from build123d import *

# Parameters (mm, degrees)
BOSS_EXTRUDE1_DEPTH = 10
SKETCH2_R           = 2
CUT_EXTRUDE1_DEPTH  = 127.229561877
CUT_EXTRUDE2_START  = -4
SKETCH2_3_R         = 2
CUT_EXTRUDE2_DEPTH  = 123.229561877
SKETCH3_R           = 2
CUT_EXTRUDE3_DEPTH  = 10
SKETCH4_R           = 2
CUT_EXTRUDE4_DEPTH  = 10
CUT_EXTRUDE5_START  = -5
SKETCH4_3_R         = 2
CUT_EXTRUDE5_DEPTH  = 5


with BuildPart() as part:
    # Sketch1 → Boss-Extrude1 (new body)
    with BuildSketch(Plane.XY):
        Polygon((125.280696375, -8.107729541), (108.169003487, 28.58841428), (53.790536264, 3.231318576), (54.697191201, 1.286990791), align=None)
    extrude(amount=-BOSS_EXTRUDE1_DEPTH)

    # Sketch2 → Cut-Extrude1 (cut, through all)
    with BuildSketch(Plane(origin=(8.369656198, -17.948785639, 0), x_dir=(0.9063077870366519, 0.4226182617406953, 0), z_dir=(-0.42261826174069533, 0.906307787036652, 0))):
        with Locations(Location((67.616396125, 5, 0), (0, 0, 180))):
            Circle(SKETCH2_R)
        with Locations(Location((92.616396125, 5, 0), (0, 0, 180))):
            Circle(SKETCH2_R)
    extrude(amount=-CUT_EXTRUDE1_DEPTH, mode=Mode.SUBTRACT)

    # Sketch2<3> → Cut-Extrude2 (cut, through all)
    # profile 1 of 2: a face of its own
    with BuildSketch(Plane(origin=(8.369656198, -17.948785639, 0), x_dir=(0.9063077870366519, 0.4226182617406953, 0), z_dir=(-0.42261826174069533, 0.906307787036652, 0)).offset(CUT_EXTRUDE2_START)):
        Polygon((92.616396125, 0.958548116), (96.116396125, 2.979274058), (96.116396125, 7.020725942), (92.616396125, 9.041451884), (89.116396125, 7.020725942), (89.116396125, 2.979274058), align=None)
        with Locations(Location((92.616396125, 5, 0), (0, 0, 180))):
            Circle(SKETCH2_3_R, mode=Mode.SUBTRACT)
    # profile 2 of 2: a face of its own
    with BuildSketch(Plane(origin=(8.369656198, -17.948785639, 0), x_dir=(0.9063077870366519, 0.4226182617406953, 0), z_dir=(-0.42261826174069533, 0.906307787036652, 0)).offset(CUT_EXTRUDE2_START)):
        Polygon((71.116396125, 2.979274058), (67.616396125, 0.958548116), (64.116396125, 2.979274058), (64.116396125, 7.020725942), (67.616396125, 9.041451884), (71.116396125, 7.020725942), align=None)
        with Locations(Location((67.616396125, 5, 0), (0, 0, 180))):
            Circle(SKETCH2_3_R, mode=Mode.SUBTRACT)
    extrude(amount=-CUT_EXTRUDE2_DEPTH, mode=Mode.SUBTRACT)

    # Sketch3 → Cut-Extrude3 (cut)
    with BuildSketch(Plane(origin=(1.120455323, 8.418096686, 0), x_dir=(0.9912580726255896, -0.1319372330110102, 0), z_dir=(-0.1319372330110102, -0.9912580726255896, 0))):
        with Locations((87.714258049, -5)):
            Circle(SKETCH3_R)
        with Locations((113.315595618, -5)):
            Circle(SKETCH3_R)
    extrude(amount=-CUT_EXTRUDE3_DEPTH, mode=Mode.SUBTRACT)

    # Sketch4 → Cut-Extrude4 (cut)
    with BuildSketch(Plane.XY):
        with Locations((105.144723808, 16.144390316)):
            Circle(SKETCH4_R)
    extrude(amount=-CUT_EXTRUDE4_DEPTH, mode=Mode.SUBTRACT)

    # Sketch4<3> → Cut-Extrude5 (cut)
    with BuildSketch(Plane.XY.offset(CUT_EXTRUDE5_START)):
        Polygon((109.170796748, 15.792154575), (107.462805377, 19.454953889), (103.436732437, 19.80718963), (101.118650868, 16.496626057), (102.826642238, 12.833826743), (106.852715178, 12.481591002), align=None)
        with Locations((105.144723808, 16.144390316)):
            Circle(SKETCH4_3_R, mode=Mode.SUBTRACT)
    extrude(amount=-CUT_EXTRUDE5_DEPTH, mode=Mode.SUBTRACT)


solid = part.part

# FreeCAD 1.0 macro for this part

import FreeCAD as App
import Part
import Sketcher
from FreeCAD import Vector
Q = App.Units.Quantity


def add_polygon(sketch, points):
    """Adds a closed chain of lines whose ends are joined by coincident constraints."""
    first, n = sketch.GeometryCount, len(points)
    for a, b in zip(points, points[1:] + points[:1]):
        sketch.addGeometry(Part.LineSegment(App.Vector(*a, 0), App.Vector(*b, 0)), False)
    for i in range(n):
        sketch.addConstraint(Sketcher.Constraint("Coincident", first + i, 2, first + (i + 1) % n, 1))

doc = App.newDocument("Part")
params = doc.addObject("Spreadsheet::Sheet", "Params")
for row, (alias, value) in enumerate([
    ("sketch1_length", "60 mm"),
    ("pad1_length", "10 mm"),
    ("sketch2_diameter", "4 mm"),
    ("sketch3_diameter", "4 mm"),
    ("pocket2_length", "123.229562 mm"),
    ("sketch4_diameter", "4 mm"),
    ("pocket3_length", "10 mm"),
    ("sketch5_diameter", "4 mm"),
    ("pocket4_length", "10 mm"),
    ("sketch6_diameter", "4 mm"),
    ("pocket5_length", "5 mm"),
], start=1):
    params.set(f"A{row}", alias)
    params.set(f"B{row}", "=" + value)
    params.setAlias(f"B{row}", alias)

body = doc.addObject("PartDesign::Body", "Body")

# Sketch on XY plane
sketch1 = body.newObject("Sketcher::SketchObject", "Sketch")
sketch1.AttachmentSupport = (doc.getObject("XY_Plane"), [""])
sketch1.MapMode = "FlatFace"
add_polygon(sketch1, [(125.3, -8.1), (108.2, 28.6), (53.8, 3.2), (54.7, 1.3)])  # lines 0-3
sketch1.addConstraint([
    Sketcher.Constraint("Perpendicular", 0, 1),
    Sketcher.Constraint("Perpendicular", 1, 2),
    Sketcher.Constraint("Angle", 0, Q("115 deg")),
    Sketcher.Constraint("Distance", 1, 60.0),
    Sketcher.Constraint("Distance", 2, 2.145328),
    Sketcher.Constraint("DistanceY", -1, 1, 1, 2, 3.231319),
    Sketcher.Constraint("DistanceX", -1, 1, 2, 2, 54.697191),
    Sketcher.Constraint("DistanceY", 3, 2, -1, 1, 8.10773),
])
sketch1.setExpression("Constraints[7]", "Params.sketch1_length")
pad1 = body.newObject("PartDesign::Pad", "Pad")
pad1.Profile = sketch1
pad1.setExpression("Length", "Params.pad1_length")
pad1.Reversed = True

# Sketch on an angled plane
sketch2 = body.newObject("Sketcher::SketchObject", "Sketch001")
sketch2.Placement = App.Placement(Vector(8.369656, -17.948786, 0), App.Rotation(Vector(0.906307787, 0.422618262, 0), Vector(0, 0, -1), Vector(-0.422618262, 0.906307787, 0), "ZXY"))
sketch2.addGeometry([
    Part.Circle(Vector(67.6, 5, 0), Vector(0, 0, 1), 2),
    Part.Circle(Vector(92.6, 5, 0), Vector(0, 0, 1), 2),
], False)
sketch2.addConstraint([
    Sketcher.Constraint("Equal", 0, 1),
    Sketcher.Constraint("Horizontal", 0, 3, 1, 3),
    Sketcher.Constraint("Diameter", 0, 4.0),
    Sketcher.Constraint("DistanceY", -1, 1, 0, 3, 5.0),
    Sketcher.Constraint("DistanceX", 0, 3, 1, 3, 25.0),
    Sketcher.Constraint("DistanceX", -1, 1, 0, 3, 67.616396),
])
sketch2.setExpression("Constraints[2]", "Params.sketch2_diameter")
pocket1 = body.newObject("PartDesign::Pocket", "Pocket")
pocket1.Profile = sketch2
pocket1.Type = "ThroughAll"

# Sketch on an angled plane
sketch3 = body.newObject("Sketcher::SketchObject", "Sketch002")
sketch3.Placement = App.Placement(Vector(10.060129, -21.574017, 0), App.Rotation(Vector(0.906307787, 0.422618262, 0), Vector(0, 0, -1), Vector(-0.422618262, 0.906307787, 0), "ZXY"))
add_polygon(sketch3, [(92.6, 1), (96.1, 3), (96.1, 7), (92.6, 9), (89.1, 7), (89.1, 3)])  # lines 0-5
sketch3.addGeometry(Part.Circle(Vector(92.6, 5, 0), Vector(0, 0, 1), 2), False)  # 6
add_polygon(sketch3, [(67.6, 1), (71.1, 3), (71.1, 7), (67.6, 9), (64.1, 7), (64.1, 3)])  # lines 7-12
sketch3.addGeometry(Part.Circle(Vector(67.6, 5, 0), Vector(0, 0, 1), 2), False)  # 13
sketch3.addConstraint([
    Sketcher.Constraint("Vertical", 1),
    Sketcher.Constraint("Vertical", 4),
    Sketcher.Constraint("Vertical", 8),
    Sketcher.Constraint("Vertical", 11),
    Sketcher.Constraint("Equal", 6, 13),
    Sketcher.Constraint("Parallel", 0, 3),
    Sketcher.Constraint("Parallel", 2, 5),
    Sketcher.Constraint("Parallel", 3, 7),
    Sketcher.Constraint("Parallel", 5, 9),
    Sketcher.Constraint("Parallel", 7, 10),
    Sketcher.Constraint("Parallel", 9, 12),
    Sketcher.Constraint("Horizontal", 6, 3, 13, 3),
    Sketcher.Constraint("Horizontal", 1, 2, 3, 2),
    Sketcher.Constraint("Horizontal", 0, 2, 4, 2),
    Sketcher.Constraint("Horizontal", 4, 2, 7, 2),
    Sketcher.Constraint("Horizontal", 3, 2, 8, 2),
    Sketcher.Constraint("Horizontal", 2, 2, 9, 2),
    Sketcher.Constraint("Horizontal", 8, 2, 10, 2),
    Sketcher.Constraint("Horizontal", 7, 2, 11, 2),
    Sketcher.Constraint("Vertical", 6, 3, 2, 2),
    Sketcher.Constraint("Vertical", 2, 2, 5, 2),
    Sketcher.Constraint("Vertical", 13, 3, 9, 2),
    Sketcher.Constraint("Diameter", 6, 4.0),
    Sketcher.Constraint("Angle", 0, Q("30 deg")),
    Sketcher.Constraint("DistanceY", -1, 1, 6, 3, 5.0),
    Sketcher.Constraint("DistanceX", 13, 3, 6, 3, 25.0),
    Sketcher.Constraint("DistanceX", 3, 2, 1, 2, 7.0),
    Sketcher.Constraint("DistanceY", 1, 1, 1, 2, 4.041452),
    Sketcher.Constraint("DistanceY", -1, 1, 2, 2, 9.041452),
    Sketcher.Constraint("DistanceX", -1, 1, 6, 3, 92.616396),
])
sketch3.setExpression("Constraints[34]", "Params.sketch3_diameter")
pocket2 = body.newObject("PartDesign::Pocket", "Pocket001")
pocket2.Profile = sketch3
pocket2.setExpression("Length", "Params.pocket2_length")

# Sketch on an angled plane
sketch4 = body.newObject("Sketcher::SketchObject", "Sketch003")
sketch4.Placement = App.Placement(Vector(1.120455, 8.418097, 0), App.Rotation(Vector(0.991258073, -0.131937233, 0), Vector(0, 0, 1.000000001), Vector(-0.131937233, -0.991258073, 0), "ZXY"))
sketch4.addGeometry([
    Part.Circle(Vector(87.7, -5, 0), Vector(0, 0, 1), 2),
    Part.Circle(Vector(113.3, -5, 0), Vector(0, 0, 1), 2),
], False)
sketch4.addConstraint([
    Sketcher.Constraint("Equal", 0, 1),
    Sketcher.Constraint("Horizontal", 0, 3, 1, 3),
    Sketcher.Constraint("Diameter", 0, 4.0),
    Sketcher.Constraint("DistanceY", 0, 3, -1, 1, 5.0),
    Sketcher.Constraint("DistanceX", -1, 1, 0, 3, 87.714258),
    Sketcher.Constraint("DistanceX", -1, 1, 1, 3, 113.315596),
])
sketch4.setExpression("Constraints[2]", "Params.sketch4_diameter")
pocket3 = body.newObject("PartDesign::Pocket", "Pocket002")
pocket3.Profile = sketch4
pocket3.setExpression("Length", "Params.pocket3_length")

# Sketch on XY plane
sketch5 = body.newObject("Sketcher::SketchObject", "Sketch004")
sketch5.AttachmentSupport = (doc.getObject("XY_Plane"), [""])
sketch5.MapMode = "FlatFace"
sketch5.addGeometry(Part.Circle(Vector(105.1, 16.1, 0), Vector(0, 0, 1), 2), False)
sketch5.addConstraint([
    Sketcher.Constraint("Diameter", 0, 4.0),
    Sketcher.Constraint("DistanceY", -1, 1, 0, 3, 16.14439),
    Sketcher.Constraint("DistanceX", -1, 1, 0, 3, 105.144724),
])
sketch5.setExpression("Constraints[0]", "Params.sketch5_diameter")
pocket4 = body.newObject("PartDesign::Pocket", "Pocket003")
pocket4.Profile = sketch5
pocket4.setExpression("Length", "Params.pocket4_length")

# Sketch on XY plane
sketch6 = body.newObject("Sketcher::SketchObject", "Sketch005")
sketch6.AttachmentSupport = (doc.getObject("XY_Plane"), [""])
sketch6.MapMode = "FlatFace"
sketch6.AttachmentOffset = App.Placement(Vector(0, 0, -5), App.Rotation())
add_polygon(sketch6, [(109.2, 15.8), (107.5, 19.5), (103.4, 19.8), (101.1, 16.5), (102.8, 12.8), (106.9, 12.5)])  # lines 0-5
sketch6.addGeometry(Part.Circle(Vector(105.1, 16.1, 0), Vector(0, 0, 1), 2), False)  # 6
sketch6.addConstraint([
    Sketcher.Constraint("Parallel", 0, 3),
    Sketcher.Constraint("Parallel", 1, 4),
    Sketcher.Constraint("Parallel", 2, 5),
    Sketcher.Constraint("Equal", 0, 1),
    Sketcher.Constraint("Equal", 1, 2),
    Sketcher.Constraint("Equal", 2, 3),
    Sketcher.Constraint("Diameter", 6, 4.0),
    Sketcher.Constraint("Angle", 0, Q("115 deg")),
    Sketcher.Constraint("Angle", 1, Q("175 deg")),
    Sketcher.Constraint("Angle", 2, Q("-125 deg")),
    Sketcher.Constraint("DistanceY", 6, 3, 1, 2, 3.662799),
    Sketcher.Constraint("DistanceY", 3, 2, 2, 2, 3.662799),
    Sketcher.Constraint("DistanceY", -1, 1, 6, 3, 16.14439),
    Sketcher.Constraint("DistanceX", -1, 1, 2, 2, 101.118651),
    Sketcher.Constraint("DistanceX", 6, 3, 0, 2, 2.318082),
])
sketch6.setExpression("Constraints[12]", "Params.sketch6_diameter")
pocket5 = body.newObject("PartDesign::Pocket", "Pocket004")
pocket5.Profile = sketch6
pocket5.setExpression("Length", "Params.pocket5_length")

doc.recompute()
